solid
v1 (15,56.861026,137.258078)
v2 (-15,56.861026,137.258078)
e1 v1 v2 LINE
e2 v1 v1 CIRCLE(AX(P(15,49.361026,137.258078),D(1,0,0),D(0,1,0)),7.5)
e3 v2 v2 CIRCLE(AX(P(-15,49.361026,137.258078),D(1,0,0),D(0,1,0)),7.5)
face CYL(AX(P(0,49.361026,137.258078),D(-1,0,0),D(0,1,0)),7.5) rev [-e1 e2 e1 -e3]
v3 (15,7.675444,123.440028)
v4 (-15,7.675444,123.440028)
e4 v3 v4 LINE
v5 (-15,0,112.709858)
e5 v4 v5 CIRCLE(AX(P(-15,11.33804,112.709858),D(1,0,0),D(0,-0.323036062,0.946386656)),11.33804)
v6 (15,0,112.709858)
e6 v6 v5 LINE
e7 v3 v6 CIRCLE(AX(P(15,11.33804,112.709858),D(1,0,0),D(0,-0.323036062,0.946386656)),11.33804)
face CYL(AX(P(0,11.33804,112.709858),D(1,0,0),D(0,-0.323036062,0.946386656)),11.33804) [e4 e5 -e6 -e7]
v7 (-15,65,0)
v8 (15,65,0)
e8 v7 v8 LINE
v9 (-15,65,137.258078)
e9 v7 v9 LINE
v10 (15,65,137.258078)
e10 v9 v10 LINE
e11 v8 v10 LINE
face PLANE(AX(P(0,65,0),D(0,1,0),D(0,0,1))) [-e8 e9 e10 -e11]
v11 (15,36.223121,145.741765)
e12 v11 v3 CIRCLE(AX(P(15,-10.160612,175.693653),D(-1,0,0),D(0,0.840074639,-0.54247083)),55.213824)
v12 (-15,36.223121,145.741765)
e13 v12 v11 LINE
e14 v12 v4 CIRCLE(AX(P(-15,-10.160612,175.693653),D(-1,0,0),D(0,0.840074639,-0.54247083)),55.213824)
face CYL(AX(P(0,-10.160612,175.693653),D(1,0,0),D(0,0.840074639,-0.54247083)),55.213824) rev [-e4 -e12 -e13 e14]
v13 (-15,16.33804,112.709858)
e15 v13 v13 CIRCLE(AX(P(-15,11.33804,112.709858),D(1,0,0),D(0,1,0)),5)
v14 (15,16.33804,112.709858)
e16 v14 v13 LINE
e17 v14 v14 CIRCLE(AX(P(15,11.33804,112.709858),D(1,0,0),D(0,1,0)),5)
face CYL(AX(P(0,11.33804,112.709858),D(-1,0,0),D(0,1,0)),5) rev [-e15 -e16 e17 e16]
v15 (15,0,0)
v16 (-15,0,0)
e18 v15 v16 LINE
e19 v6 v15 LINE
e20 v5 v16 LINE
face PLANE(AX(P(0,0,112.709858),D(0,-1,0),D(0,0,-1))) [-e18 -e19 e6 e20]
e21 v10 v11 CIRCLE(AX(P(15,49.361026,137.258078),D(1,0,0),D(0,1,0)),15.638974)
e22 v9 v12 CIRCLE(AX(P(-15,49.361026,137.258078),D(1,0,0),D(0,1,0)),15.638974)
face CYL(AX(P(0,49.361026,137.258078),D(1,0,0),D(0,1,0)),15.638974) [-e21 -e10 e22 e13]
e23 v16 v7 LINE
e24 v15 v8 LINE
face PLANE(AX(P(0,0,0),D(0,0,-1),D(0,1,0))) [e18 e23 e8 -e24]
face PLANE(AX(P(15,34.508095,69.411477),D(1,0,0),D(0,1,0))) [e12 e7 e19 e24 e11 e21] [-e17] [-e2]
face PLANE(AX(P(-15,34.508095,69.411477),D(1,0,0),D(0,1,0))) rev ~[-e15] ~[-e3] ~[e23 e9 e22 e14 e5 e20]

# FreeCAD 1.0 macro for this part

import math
import FreeCAD as App
import Part
import Sketcher
from FreeCAD import Vector

doc = App.newDocument("Part")
params = doc.addObject("Spreadsheet::Sheet", "Params")
for row, (alias, value) in enumerate([
    ("sketch1_diameter", "10 mm"),
    ("sketch1_diameter2", "15 mm"),
    ("sketch1_width", "65 mm"),
    ("pad1_length", "30 mm"),
], start=1):
    params.set(f"A{row}", alias)
    params.set(f"B{row}", "=" + value)
    params.setAlias(f"B{row}", alias)

body = doc.addObject("PartDesign::Body", "Body")

# Sketch on YZ plane
sketch1 = body.newObject("Sketcher::SketchObject", "Sketch")
sketch1.AttachmentSupport = (doc.getObject("YZ_Plane"), [""])
sketch1.MapMode = "FlatFace"
sketch1.addGeometry([
    Part.LineSegment(Vector(0, 0, 0), Vector(65, 0, 0)),  # 0
    Part.LineSegment(Vector(65, 0, 0), Vector(65, 137, 0)),  # 1
    Part.ArcOfCircle(Part.Circle(Vector(49, 137, 0), Vector(0, 0, 1), 16), math.radians(0), math.radians(147)),  # 2
    Part.ArcOfCircle(Part.Circle(Vector(-10, 176, 0), Vector(0, 0, 1), 55), math.radians(-71), math.radians(-33)),  # 3
    Part.ArcOfCircle(Part.Circle(Vector(11, 113, 0), Vector(0, 0, 1), 11), math.radians(109), math.radians(180)),  # 4
    Part.LineSegment(Vector(0, 113, 0), Vector(0, 0, 0)),  # 5
    Part.Circle(Vector(11, 113, 0), Vector(0, 0, 1), 5),  # 6
    Part.Circle(Vector(49, 137, 0), Vector(0, 0, 1), 8),  # 7
], False)
sketch1.addConstraint([
    Sketcher.Constraint("Coincident", 0, 2, 1, 1),
    Sketcher.Constraint("Tangent", 1, 2, 2, 1),
    Sketcher.Constraint("Tangent", 2, 2, 3, 2),
    Sketcher.Constraint("Tangent", 3, 1, 4, 1),
    Sketcher.Constraint("Tangent", 4, 2, 5, 1),
    Sketcher.Constraint("Coincident", 5, 2, 0, 1),
    Sketcher.Constraint("Horizontal", 0),
    Sketcher.Constraint("Vertical", 1),
    Sketcher.Constraint("Vertical", 5),
    Sketcher.Constraint("Coincident", 5, 2, -1, 1),
    Sketcher.Constraint("Coincident", 6, 3, 4, 3),
    Sketcher.Constraint("Coincident", 7, 3, 2, 3),
    Sketcher.Constraint("Diameter", 6, 10.0),
    Sketcher.Constraint("Diameter", 7, 15.0),
    Sketcher.Constraint("DistanceX", 0, 1, 0, 2, 65.0),
    Sketcher.Constraint("Radius", 4, 11.33804),
    Sketcher.Constraint("Radius", 2, 15.638974),
    Sketcher.Constraint("Radius", 3, 55.213824),
    Sketcher.Constraint("DistanceY", 1, 1, 1, 2, 137.258078),
    Sketcher.Constraint("DistanceY", 5, 2, 5, 1, 112.709858),
])
sketch1.setExpression("Constraints[12]", "Params.sketch1_diameter")
sketch1.setExpression("Constraints[13]", "Params.sketch1_diameter2")
sketch1.setExpression("Constraints[14]", "Params.sketch1_width")
pad1 = body.newObject("PartDesign::Pad", "Pad")
pad1.Profile = sketch1
pad1.setExpression("Length", "Params.pad1_length")
pad1.Midplane = True

doc.recompute()
